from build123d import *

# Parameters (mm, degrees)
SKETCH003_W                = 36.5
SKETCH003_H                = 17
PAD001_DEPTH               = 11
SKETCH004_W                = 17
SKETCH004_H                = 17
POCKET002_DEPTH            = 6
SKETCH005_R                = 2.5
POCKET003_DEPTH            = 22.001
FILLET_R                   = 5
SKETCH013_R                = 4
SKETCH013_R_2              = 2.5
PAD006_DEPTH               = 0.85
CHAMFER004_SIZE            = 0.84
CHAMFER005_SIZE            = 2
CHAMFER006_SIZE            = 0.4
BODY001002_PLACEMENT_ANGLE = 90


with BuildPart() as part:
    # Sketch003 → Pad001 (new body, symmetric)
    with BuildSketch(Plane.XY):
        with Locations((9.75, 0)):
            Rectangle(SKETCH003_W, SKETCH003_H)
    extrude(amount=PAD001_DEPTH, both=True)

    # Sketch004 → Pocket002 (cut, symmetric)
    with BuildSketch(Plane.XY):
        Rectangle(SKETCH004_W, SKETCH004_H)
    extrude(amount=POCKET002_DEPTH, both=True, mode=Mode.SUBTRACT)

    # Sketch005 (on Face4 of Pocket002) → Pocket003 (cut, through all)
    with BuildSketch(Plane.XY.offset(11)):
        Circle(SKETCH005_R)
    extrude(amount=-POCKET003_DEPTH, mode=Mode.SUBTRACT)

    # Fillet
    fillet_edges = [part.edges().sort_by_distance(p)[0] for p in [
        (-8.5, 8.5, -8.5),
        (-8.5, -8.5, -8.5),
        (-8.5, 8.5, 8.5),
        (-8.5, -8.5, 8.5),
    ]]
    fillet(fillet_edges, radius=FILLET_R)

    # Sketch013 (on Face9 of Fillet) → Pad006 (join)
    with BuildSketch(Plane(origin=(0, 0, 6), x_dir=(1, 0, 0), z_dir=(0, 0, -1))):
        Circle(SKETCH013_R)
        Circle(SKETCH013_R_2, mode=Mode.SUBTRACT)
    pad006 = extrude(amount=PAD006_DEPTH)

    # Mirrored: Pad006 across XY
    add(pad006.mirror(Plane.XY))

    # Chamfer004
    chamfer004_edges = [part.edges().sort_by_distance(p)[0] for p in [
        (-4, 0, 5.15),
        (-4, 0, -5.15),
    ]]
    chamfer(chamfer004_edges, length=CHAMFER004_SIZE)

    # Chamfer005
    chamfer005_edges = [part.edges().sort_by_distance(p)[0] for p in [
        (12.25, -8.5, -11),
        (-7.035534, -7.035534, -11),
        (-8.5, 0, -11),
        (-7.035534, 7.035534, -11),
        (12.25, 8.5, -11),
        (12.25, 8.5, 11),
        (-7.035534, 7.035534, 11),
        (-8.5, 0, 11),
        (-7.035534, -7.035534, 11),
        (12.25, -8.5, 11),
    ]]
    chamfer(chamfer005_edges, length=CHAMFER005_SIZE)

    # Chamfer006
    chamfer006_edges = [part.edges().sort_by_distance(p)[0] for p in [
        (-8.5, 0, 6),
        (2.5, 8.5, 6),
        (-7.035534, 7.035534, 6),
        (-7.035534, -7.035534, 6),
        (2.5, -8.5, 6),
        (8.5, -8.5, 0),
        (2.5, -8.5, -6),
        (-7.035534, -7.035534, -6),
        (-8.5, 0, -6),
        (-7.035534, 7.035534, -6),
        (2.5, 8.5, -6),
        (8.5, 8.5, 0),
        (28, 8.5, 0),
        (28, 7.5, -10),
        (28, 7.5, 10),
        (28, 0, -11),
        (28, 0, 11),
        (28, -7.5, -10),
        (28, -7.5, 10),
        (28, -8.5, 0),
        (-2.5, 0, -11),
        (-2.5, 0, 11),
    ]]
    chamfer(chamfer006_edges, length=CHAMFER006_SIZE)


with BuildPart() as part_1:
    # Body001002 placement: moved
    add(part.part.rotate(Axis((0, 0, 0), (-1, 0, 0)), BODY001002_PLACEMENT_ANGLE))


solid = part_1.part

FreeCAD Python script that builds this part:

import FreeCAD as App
import Part
import Sketcher
from FreeCAD import Vector


def edges_at(feature, points):
    """Names of the edges that pass closest to the given points."""
    edges = feature.Shape.Edges
    near = lambda p: min(range(len(edges)), key=lambda i: edges[i].distToShape(Part.Vertex(*p))[0])
    return sorted({f"Edge{near(p) + 1}" for p in points})


def add_polygon(sketch, points):
    """Adds a closed chain of lines whose ends are joined by coincident constraints."""
    first, n = sketch.GeometryCount, len(points)
    for a, b in zip(points, points[1:] + points[:1]):
        sketch.addGeometry(Part.LineSegment(App.Vector(*a, 0), App.Vector(*b, 0)), False)
    for i in range(n):
        sketch.addConstraint(Sketcher.Constraint("Coincident", first + i, 2, first + (i + 1) % n, 1))

doc = App.newDocument("Part")
params = doc.addObject("Spreadsheet::Sheet", "Params")
for row, (alias, value) in enumerate([
    ("sketch1_height", "17 mm"),
    ("sketch1_width", "36.5 mm"),
    ("pad1_length", "22 mm"),
    ("sketch2_width", "17 mm"),
    ("pocket1_length", "12 mm"),
    ("sketch3_diameter", "5 mm"),
    ("fillet_radius", "5 mm"),
    ("sketch4_diameter", "8 mm"),
    ("sketch4_diameter2", "5 mm"),
    ("pad2_length", "0.85 mm"),
    ("chamfer_size", "0.84 mm"),
    ("chamfer2_size", "2 mm"),
    ("chamfer3_size", "0.4 mm"),
], start=1):
    params.set(f"A{row}", alias)
    params.set(f"B{row}", "=" + value)
    params.setAlias(f"B{row}", alias)

body = doc.addObject("PartDesign::Body", "Body")

sketch1 = body.newObject("Sketcher::SketchObject", "Sketch")
sketch1.AttachmentSupport = (doc.getObject("XY_Plane"), [""])
sketch1.MapMode = "FlatFace"
add_polygon(sketch1, [(-8, 8), (-8, -8), (28, -8), (28, 8)])
sketch1.addConstraint(Sketcher.Constraint("Vertical", 0))
sketch1.addConstraint(Sketcher.Constraint("Horizontal", 1))
sketch1.addConstraint(Sketcher.Constraint("Vertical", 2))
sketch1.addConstraint(Sketcher.Constraint("Horizontal", 3))
sketch1.addConstraint(Sketcher.Constraint("DistanceY", 0, 2, 0, 1, 17.0))
sketch1.addConstraint(Sketcher.Constraint("DistanceX", 1, 1, 1, 2, 36.5))
sketch1.addConstraint(Sketcher.Constraint("DistanceX", -1, 1, 1, 2, 28.0))
sketch1.addConstraint(Sketcher.Constraint("DistanceY", 0, 2, -1, 1, 8.5))
sketch1.setExpression("Constraints[8]", "Params.sketch1_height")
sketch1.setExpression("Constraints[9]", "Params.sketch1_width")
pad1 = body.newObject("PartDesign::Pad", "Pad")
pad1.Profile = sketch1
pad1.setExpression("Length", "Params.pad1_length")
pad1.Midplane = True

sketch2 = body.newObject("Sketcher::SketchObject", "Sketch001")
sketch2.AttachmentSupport = (doc.getObject("XY_Plane"), [""])
sketch2.MapMode = "FlatFace"
add_polygon(sketch2, [(-8, 8), (-8, -8), (8, -8), (8, 8)])
sketch2.addConstraint(Sketcher.Constraint("Vertical", 0))
sketch2.addConstraint(Sketcher.Constraint("Horizontal", 1))
sketch2.addConstraint(Sketcher.Constraint("Vertical", 2))
sketch2.addConstraint(Sketcher.Constraint("Horizontal", 3))
sketch2.addConstraint(Sketcher.Constraint("Symmetric", 0, 2, 2, 2, -1, 1))
sketch2.addConstraint(Sketcher.Constraint("Equal", 3, 0))
sketch2.addConstraint(Sketcher.Constraint("DistanceX", 1, 1, 1, 2, 17.0))
sketch2.setExpression("Constraints[10]", "Params.sketch2_width")
pocket1 = body.newObject("PartDesign::Pocket", "Pocket")
pocket1.Profile = sketch2
pocket1.setExpression("Length", "Params.pocket1_length")
pocket1.Midplane = True

sketch3 = body.newObject("Sketcher::SketchObject", "Sketch002")
sketch3.AttachmentSupport = (doc.getObject("XY_Plane"), [""])
sketch3.MapMode = "FlatFace"
sketch3.AttachmentOffset = App.Placement(Vector(0, 0, 11), App.Rotation())
sketch3.addGeometry(Part.Circle(Vector(0, 0, 0), Vector(0, 0, 1), 2.5), False)
sketch3.addConstraint(Sketcher.Constraint("Coincident", 0, 3, -1, 1))
sketch3.addConstraint(Sketcher.Constraint("Diameter", 0, 5.0))
sketch3.setExpression("Constraints[1]", "Params.sketch3_diameter")
pocket2 = body.newObject("PartDesign::Pocket", "Pocket001")
pocket2.Profile = sketch3
pocket2.Type = "ThroughAll"
doc.recompute()

fillet = body.newObject("PartDesign::Fillet", "Fillet")
fillet.Base = (pocket2, edges_at(pocket2, [
    (-8.5, 8.5, -8.5),
    (-8.5, -8.5, -8.5),
    (-8.5, 8.5, 8.5),
    (-8.5, -8.5, 8.5),
]))
fillet.setExpression("Radius", "Params.fillet_radius")

sketch4 = body.newObject("Sketcher::SketchObject", "Sketch003")
sketch4.AttachmentSupport = (doc.getObject("XY_Plane"), [""])
sketch4.MapMode = "FlatFace"
sketch4.AttachmentOffset = App.Placement(Vector(0, 0, 6), App.Rotation())
sketch4.addGeometry(Part.Circle(Vector(0, 0, 0), Vector(0, 0, 1), 4), False)
sketch4.addGeometry(Part.Circle(Vector(0, 0, 0), Vector(0, 0, 1), 2.5), False)
sketch4.addConstraint(Sketcher.Constraint("Coincident", 0, 3, -1, 1))
sketch4.addConstraint(Sketcher.Constraint("Coincident", 1, 3, -1, 1))
sketch4.addConstraint(Sketcher.Constraint("Diameter", 0, 8.0))
sketch4.addConstraint(Sketcher.Constraint("Diameter", 1, 5.0))
sketch4.setExpression("Constraints[2]", "Params.sketch4_diameter")
sketch4.setExpression("Constraints[3]", "Params.sketch4_diameter2")
pad2 = body.newObject("PartDesign::Pad", "Pad001")
pad2.Profile = sketch4
pad2.setExpression("Length", "Params.pad2_length")
pad2.Reversed = True
doc.recompute()

mirrored = body.newObject("PartDesign::Mirrored", "Mirrored")
mirrored.Originals = [pad2]
mirrored.MirrorPlane = (doc.getObject("XY_Plane"), [""])
body.Tip = mirrored
doc.recompute()

chamfer = body.newObject("PartDesign::Chamfer", "Chamfer")
chamfer.Base = (mirrored, edges_at(mirrored, [(-4, 0, 5.15), (-4, 0, -5.15)]))
chamfer.setExpression("Size", "Params.chamfer_size")
doc.recompute()

chamfer2 = body.newObject("PartDesign::Chamfer", "Chamfer001")
chamfer2.Base = (chamfer, edges_at(chamfer, [
    (12.25, -8.5, -11),
    (-7.036, -7.036, -11),
    (-8.5, 0, -11),
    (-7.036, 7.036, -11),
    (12.25, 8.5, -11),
    (12.25, 8.5, 11),
    (-7.036, 7.036, 11),
    (-8.5, 0, 11),
    (-7.036, -7.036, 11),
    (12.25, -8.5, 11),
]))
chamfer2.setExpression("Size", "Params.chamfer2_size")
doc.recompute()

chamfer3 = body.newObject("PartDesign::Chamfer", "Chamfer002")
chamfer3.Base = (chamfer2, edges_at(chamfer2, [
    (-8.5, 0, 6),
    (2.5, 8.5, 6),
    (-7.036, 7.036, 6),
    (-7.036, -7.036, 6),
    (2.5, -8.5, 6),
    (8.5, -8.5, 0),
    (2.5, -8.5, -6),
    (-7.036, -7.036, -6),
    (-8.5, 0, -6),
    (-7.036, 7.036, -6),
    (2.5, 8.5, -6),
    (8.5, 8.5, 0),
    (28, 8.5, 0),
    (28, 7.5, -10),
    (28, 7.5, 10),
    (28, 0, -11),
    (28, 0, 11),
    (28, -7.5, -10),
    (28, -7.5, 10),
    (28, -8.5, 0),
    (-2.5, 0, -11),
    (-2.5, 0, 11),
]))
chamfer3.setExpression("Size", "Params.chamfer3_size")
body2 = doc.addObject("PartDesign::Body", "Body001")
doc.recompute()

body.Placement = App.Placement(Vector(0, 0, 0), App.Rotation(Vector(-1, 0, 0), 90))
boolean = body2.newObject("PartDesign::Boolean", "Boolean")
boolean.Type = "Fuse"
boolean.addObjects([body])

doc.recompute()
